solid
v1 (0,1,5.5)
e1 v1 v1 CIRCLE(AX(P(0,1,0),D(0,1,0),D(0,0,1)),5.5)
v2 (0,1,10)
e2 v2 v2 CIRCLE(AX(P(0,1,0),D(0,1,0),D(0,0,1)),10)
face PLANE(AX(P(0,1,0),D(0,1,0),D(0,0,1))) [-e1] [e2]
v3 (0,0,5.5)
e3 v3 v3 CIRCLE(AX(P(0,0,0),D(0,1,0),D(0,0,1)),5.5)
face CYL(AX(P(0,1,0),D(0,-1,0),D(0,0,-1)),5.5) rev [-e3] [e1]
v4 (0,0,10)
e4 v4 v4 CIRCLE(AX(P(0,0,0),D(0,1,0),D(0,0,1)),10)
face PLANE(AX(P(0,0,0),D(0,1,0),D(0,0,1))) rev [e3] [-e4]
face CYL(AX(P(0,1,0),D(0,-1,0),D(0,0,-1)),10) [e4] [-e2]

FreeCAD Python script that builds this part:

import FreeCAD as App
import Part
import Sketcher

V = App.Vector

doc = App.newDocument("Part")
params = doc.addObject("Spreadsheet::Sheet", "Params")
for row, (alias, value) in enumerate([
    ("sketch1_diameter", "20 mm"),
    ("sketch1_diameter2", "11 mm"),
    ("pad1_length", "1 mm"),
], start=1):
    params.set(f"A{row}", alias)
    params.set(f"B{row}", "=" + value)
    params.setAlias(f"B{row}", alias)

body = doc.addObject("PartDesign::Body", "Body")

# Sketch on XZ plane
sketch1 = doc.addObject("Sketcher::SketchObject", "Sketch")
body.addObject(sketch1)
sketch1.AttachmentSupport = (doc.XZ_Plane, [""])
sketch1.MapMode = "FlatFace"
sketch1.addGeometry([
    Part.Circle(V(0, 0, 0), V(0, 0, 1), 10),
    Part.Circle(V(0, 0, 0), V(0, 0, 1), 6),
], False)
sketch1.addConstraint([
    Sketcher.Constraint("Coincident", 0, 3, -1, 1),
    Sketcher.Constraint("Coincident", 1, 3, -1, 1),
    Sketcher.Constraint("Diameter", 0, 20.0),
    Sketcher.Constraint("Diameter", 1, 11.0),
])
sketch1.setExpression("Constraints[2]", "Params.sketch1_diameter")
sketch1.setExpression("Constraints[3]", "Params.sketch1_diameter2")
pad1 = doc.addObject("PartDesign::Pad", "Pad")
body.addObject(pad1)
pad1.Profile = sketch1
pad1.setExpression("Length", "Params.pad1_length")
pad1.Reversed = True

doc.recompute()
